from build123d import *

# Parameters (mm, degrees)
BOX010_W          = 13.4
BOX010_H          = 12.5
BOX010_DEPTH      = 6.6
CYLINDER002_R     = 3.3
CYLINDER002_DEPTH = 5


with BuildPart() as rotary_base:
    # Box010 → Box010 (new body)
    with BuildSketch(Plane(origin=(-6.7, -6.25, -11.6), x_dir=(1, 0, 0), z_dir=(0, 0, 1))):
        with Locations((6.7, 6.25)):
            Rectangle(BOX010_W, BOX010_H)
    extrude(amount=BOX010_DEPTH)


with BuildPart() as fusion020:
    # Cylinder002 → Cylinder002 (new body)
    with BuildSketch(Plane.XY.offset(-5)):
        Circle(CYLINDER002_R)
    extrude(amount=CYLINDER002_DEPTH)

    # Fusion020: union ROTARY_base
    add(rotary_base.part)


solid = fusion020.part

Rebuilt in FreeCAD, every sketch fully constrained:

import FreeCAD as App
import Part
import Sketcher
from FreeCAD import Vector


def add_polygon(sketch, points):
    """Adds a closed chain of lines whose ends are joined by coincident constraints."""
    first, n = sketch.GeometryCount, len(points)
    for a, b in zip(points, points[1:] + points[:1]):
        sketch.addGeometry(Part.LineSegment(App.Vector(*a, 0), App.Vector(*b, 0)), False)
    for i in range(n):
        sketch.addConstraint(Sketcher.Constraint("Coincident", first + i, 2, first + (i + 1) % n, 1))

doc = App.newDocument("Part")
body = doc.addObject("PartDesign::Body", "Body")

sketch1 = body.newObject("Sketcher::SketchObject", "Sketch")
sketch1.AttachmentSupport = (doc.getObject("XY_Plane"), [""])
sketch1.MapMode = "FlatFace"
sketch1.AttachmentOffset = App.Placement(Vector(0, 0, -11.6), App.Rotation())
add_polygon(sketch1, [(-6.7, 6.25), (-6.7, -6.25), (6.7, -6.25), (6.7, 6.25)])
sketch1.addConstraint([
    Sketcher.Constraint("Vertical", 0),
    Sketcher.Constraint("Horizontal", 1),
    Sketcher.Constraint("Vertical", 2),
    Sketcher.Constraint("Horizontal", 3),
    Sketcher.Constraint("Symmetric", 0, 2, 2, 2, -1, 1),
    Sketcher.Constraint("DistanceX", 1, 1, 1, 2, 13.4),
    Sketcher.Constraint("DistanceY", 0, 2, 0, 1, 12.5),
])
pad1 = body.newObject("PartDesign::Pad", "Pad")
pad1.Profile = sketch1
pad1.Length = 6.6
body2 = doc.addObject("PartDesign::Body", "Body001")

sketch2 = body2.newObject("Sketcher::SketchObject", "Sketch001")
sketch2.AttachmentSupport = (doc.getObject("XY_Plane001"), [""])
sketch2.MapMode = "FlatFace"
sketch2.AttachmentOffset = App.Placement(Vector(0, 0, -5), App.Rotation())
sketch2.addGeometry(Part.Circle(Vector(0, 0, 0), Vector(0, 0, 1), 3.3), False)
sketch2.addConstraint([
    Sketcher.Constraint("Coincident", 0, 3, -1, 1),
    Sketcher.Constraint("Diameter", 0, 6.6),
])
pad2 = body2.newObject("PartDesign::Pad", "Pad001")
pad2.Profile = sketch2
pad2.Length = 5
doc.recompute()

boolean = body2.newObject("PartDesign::Boolean", "Boolean")
boolean.Type = "Fuse"
boolean.addObjects([body])

doc.recompute()
